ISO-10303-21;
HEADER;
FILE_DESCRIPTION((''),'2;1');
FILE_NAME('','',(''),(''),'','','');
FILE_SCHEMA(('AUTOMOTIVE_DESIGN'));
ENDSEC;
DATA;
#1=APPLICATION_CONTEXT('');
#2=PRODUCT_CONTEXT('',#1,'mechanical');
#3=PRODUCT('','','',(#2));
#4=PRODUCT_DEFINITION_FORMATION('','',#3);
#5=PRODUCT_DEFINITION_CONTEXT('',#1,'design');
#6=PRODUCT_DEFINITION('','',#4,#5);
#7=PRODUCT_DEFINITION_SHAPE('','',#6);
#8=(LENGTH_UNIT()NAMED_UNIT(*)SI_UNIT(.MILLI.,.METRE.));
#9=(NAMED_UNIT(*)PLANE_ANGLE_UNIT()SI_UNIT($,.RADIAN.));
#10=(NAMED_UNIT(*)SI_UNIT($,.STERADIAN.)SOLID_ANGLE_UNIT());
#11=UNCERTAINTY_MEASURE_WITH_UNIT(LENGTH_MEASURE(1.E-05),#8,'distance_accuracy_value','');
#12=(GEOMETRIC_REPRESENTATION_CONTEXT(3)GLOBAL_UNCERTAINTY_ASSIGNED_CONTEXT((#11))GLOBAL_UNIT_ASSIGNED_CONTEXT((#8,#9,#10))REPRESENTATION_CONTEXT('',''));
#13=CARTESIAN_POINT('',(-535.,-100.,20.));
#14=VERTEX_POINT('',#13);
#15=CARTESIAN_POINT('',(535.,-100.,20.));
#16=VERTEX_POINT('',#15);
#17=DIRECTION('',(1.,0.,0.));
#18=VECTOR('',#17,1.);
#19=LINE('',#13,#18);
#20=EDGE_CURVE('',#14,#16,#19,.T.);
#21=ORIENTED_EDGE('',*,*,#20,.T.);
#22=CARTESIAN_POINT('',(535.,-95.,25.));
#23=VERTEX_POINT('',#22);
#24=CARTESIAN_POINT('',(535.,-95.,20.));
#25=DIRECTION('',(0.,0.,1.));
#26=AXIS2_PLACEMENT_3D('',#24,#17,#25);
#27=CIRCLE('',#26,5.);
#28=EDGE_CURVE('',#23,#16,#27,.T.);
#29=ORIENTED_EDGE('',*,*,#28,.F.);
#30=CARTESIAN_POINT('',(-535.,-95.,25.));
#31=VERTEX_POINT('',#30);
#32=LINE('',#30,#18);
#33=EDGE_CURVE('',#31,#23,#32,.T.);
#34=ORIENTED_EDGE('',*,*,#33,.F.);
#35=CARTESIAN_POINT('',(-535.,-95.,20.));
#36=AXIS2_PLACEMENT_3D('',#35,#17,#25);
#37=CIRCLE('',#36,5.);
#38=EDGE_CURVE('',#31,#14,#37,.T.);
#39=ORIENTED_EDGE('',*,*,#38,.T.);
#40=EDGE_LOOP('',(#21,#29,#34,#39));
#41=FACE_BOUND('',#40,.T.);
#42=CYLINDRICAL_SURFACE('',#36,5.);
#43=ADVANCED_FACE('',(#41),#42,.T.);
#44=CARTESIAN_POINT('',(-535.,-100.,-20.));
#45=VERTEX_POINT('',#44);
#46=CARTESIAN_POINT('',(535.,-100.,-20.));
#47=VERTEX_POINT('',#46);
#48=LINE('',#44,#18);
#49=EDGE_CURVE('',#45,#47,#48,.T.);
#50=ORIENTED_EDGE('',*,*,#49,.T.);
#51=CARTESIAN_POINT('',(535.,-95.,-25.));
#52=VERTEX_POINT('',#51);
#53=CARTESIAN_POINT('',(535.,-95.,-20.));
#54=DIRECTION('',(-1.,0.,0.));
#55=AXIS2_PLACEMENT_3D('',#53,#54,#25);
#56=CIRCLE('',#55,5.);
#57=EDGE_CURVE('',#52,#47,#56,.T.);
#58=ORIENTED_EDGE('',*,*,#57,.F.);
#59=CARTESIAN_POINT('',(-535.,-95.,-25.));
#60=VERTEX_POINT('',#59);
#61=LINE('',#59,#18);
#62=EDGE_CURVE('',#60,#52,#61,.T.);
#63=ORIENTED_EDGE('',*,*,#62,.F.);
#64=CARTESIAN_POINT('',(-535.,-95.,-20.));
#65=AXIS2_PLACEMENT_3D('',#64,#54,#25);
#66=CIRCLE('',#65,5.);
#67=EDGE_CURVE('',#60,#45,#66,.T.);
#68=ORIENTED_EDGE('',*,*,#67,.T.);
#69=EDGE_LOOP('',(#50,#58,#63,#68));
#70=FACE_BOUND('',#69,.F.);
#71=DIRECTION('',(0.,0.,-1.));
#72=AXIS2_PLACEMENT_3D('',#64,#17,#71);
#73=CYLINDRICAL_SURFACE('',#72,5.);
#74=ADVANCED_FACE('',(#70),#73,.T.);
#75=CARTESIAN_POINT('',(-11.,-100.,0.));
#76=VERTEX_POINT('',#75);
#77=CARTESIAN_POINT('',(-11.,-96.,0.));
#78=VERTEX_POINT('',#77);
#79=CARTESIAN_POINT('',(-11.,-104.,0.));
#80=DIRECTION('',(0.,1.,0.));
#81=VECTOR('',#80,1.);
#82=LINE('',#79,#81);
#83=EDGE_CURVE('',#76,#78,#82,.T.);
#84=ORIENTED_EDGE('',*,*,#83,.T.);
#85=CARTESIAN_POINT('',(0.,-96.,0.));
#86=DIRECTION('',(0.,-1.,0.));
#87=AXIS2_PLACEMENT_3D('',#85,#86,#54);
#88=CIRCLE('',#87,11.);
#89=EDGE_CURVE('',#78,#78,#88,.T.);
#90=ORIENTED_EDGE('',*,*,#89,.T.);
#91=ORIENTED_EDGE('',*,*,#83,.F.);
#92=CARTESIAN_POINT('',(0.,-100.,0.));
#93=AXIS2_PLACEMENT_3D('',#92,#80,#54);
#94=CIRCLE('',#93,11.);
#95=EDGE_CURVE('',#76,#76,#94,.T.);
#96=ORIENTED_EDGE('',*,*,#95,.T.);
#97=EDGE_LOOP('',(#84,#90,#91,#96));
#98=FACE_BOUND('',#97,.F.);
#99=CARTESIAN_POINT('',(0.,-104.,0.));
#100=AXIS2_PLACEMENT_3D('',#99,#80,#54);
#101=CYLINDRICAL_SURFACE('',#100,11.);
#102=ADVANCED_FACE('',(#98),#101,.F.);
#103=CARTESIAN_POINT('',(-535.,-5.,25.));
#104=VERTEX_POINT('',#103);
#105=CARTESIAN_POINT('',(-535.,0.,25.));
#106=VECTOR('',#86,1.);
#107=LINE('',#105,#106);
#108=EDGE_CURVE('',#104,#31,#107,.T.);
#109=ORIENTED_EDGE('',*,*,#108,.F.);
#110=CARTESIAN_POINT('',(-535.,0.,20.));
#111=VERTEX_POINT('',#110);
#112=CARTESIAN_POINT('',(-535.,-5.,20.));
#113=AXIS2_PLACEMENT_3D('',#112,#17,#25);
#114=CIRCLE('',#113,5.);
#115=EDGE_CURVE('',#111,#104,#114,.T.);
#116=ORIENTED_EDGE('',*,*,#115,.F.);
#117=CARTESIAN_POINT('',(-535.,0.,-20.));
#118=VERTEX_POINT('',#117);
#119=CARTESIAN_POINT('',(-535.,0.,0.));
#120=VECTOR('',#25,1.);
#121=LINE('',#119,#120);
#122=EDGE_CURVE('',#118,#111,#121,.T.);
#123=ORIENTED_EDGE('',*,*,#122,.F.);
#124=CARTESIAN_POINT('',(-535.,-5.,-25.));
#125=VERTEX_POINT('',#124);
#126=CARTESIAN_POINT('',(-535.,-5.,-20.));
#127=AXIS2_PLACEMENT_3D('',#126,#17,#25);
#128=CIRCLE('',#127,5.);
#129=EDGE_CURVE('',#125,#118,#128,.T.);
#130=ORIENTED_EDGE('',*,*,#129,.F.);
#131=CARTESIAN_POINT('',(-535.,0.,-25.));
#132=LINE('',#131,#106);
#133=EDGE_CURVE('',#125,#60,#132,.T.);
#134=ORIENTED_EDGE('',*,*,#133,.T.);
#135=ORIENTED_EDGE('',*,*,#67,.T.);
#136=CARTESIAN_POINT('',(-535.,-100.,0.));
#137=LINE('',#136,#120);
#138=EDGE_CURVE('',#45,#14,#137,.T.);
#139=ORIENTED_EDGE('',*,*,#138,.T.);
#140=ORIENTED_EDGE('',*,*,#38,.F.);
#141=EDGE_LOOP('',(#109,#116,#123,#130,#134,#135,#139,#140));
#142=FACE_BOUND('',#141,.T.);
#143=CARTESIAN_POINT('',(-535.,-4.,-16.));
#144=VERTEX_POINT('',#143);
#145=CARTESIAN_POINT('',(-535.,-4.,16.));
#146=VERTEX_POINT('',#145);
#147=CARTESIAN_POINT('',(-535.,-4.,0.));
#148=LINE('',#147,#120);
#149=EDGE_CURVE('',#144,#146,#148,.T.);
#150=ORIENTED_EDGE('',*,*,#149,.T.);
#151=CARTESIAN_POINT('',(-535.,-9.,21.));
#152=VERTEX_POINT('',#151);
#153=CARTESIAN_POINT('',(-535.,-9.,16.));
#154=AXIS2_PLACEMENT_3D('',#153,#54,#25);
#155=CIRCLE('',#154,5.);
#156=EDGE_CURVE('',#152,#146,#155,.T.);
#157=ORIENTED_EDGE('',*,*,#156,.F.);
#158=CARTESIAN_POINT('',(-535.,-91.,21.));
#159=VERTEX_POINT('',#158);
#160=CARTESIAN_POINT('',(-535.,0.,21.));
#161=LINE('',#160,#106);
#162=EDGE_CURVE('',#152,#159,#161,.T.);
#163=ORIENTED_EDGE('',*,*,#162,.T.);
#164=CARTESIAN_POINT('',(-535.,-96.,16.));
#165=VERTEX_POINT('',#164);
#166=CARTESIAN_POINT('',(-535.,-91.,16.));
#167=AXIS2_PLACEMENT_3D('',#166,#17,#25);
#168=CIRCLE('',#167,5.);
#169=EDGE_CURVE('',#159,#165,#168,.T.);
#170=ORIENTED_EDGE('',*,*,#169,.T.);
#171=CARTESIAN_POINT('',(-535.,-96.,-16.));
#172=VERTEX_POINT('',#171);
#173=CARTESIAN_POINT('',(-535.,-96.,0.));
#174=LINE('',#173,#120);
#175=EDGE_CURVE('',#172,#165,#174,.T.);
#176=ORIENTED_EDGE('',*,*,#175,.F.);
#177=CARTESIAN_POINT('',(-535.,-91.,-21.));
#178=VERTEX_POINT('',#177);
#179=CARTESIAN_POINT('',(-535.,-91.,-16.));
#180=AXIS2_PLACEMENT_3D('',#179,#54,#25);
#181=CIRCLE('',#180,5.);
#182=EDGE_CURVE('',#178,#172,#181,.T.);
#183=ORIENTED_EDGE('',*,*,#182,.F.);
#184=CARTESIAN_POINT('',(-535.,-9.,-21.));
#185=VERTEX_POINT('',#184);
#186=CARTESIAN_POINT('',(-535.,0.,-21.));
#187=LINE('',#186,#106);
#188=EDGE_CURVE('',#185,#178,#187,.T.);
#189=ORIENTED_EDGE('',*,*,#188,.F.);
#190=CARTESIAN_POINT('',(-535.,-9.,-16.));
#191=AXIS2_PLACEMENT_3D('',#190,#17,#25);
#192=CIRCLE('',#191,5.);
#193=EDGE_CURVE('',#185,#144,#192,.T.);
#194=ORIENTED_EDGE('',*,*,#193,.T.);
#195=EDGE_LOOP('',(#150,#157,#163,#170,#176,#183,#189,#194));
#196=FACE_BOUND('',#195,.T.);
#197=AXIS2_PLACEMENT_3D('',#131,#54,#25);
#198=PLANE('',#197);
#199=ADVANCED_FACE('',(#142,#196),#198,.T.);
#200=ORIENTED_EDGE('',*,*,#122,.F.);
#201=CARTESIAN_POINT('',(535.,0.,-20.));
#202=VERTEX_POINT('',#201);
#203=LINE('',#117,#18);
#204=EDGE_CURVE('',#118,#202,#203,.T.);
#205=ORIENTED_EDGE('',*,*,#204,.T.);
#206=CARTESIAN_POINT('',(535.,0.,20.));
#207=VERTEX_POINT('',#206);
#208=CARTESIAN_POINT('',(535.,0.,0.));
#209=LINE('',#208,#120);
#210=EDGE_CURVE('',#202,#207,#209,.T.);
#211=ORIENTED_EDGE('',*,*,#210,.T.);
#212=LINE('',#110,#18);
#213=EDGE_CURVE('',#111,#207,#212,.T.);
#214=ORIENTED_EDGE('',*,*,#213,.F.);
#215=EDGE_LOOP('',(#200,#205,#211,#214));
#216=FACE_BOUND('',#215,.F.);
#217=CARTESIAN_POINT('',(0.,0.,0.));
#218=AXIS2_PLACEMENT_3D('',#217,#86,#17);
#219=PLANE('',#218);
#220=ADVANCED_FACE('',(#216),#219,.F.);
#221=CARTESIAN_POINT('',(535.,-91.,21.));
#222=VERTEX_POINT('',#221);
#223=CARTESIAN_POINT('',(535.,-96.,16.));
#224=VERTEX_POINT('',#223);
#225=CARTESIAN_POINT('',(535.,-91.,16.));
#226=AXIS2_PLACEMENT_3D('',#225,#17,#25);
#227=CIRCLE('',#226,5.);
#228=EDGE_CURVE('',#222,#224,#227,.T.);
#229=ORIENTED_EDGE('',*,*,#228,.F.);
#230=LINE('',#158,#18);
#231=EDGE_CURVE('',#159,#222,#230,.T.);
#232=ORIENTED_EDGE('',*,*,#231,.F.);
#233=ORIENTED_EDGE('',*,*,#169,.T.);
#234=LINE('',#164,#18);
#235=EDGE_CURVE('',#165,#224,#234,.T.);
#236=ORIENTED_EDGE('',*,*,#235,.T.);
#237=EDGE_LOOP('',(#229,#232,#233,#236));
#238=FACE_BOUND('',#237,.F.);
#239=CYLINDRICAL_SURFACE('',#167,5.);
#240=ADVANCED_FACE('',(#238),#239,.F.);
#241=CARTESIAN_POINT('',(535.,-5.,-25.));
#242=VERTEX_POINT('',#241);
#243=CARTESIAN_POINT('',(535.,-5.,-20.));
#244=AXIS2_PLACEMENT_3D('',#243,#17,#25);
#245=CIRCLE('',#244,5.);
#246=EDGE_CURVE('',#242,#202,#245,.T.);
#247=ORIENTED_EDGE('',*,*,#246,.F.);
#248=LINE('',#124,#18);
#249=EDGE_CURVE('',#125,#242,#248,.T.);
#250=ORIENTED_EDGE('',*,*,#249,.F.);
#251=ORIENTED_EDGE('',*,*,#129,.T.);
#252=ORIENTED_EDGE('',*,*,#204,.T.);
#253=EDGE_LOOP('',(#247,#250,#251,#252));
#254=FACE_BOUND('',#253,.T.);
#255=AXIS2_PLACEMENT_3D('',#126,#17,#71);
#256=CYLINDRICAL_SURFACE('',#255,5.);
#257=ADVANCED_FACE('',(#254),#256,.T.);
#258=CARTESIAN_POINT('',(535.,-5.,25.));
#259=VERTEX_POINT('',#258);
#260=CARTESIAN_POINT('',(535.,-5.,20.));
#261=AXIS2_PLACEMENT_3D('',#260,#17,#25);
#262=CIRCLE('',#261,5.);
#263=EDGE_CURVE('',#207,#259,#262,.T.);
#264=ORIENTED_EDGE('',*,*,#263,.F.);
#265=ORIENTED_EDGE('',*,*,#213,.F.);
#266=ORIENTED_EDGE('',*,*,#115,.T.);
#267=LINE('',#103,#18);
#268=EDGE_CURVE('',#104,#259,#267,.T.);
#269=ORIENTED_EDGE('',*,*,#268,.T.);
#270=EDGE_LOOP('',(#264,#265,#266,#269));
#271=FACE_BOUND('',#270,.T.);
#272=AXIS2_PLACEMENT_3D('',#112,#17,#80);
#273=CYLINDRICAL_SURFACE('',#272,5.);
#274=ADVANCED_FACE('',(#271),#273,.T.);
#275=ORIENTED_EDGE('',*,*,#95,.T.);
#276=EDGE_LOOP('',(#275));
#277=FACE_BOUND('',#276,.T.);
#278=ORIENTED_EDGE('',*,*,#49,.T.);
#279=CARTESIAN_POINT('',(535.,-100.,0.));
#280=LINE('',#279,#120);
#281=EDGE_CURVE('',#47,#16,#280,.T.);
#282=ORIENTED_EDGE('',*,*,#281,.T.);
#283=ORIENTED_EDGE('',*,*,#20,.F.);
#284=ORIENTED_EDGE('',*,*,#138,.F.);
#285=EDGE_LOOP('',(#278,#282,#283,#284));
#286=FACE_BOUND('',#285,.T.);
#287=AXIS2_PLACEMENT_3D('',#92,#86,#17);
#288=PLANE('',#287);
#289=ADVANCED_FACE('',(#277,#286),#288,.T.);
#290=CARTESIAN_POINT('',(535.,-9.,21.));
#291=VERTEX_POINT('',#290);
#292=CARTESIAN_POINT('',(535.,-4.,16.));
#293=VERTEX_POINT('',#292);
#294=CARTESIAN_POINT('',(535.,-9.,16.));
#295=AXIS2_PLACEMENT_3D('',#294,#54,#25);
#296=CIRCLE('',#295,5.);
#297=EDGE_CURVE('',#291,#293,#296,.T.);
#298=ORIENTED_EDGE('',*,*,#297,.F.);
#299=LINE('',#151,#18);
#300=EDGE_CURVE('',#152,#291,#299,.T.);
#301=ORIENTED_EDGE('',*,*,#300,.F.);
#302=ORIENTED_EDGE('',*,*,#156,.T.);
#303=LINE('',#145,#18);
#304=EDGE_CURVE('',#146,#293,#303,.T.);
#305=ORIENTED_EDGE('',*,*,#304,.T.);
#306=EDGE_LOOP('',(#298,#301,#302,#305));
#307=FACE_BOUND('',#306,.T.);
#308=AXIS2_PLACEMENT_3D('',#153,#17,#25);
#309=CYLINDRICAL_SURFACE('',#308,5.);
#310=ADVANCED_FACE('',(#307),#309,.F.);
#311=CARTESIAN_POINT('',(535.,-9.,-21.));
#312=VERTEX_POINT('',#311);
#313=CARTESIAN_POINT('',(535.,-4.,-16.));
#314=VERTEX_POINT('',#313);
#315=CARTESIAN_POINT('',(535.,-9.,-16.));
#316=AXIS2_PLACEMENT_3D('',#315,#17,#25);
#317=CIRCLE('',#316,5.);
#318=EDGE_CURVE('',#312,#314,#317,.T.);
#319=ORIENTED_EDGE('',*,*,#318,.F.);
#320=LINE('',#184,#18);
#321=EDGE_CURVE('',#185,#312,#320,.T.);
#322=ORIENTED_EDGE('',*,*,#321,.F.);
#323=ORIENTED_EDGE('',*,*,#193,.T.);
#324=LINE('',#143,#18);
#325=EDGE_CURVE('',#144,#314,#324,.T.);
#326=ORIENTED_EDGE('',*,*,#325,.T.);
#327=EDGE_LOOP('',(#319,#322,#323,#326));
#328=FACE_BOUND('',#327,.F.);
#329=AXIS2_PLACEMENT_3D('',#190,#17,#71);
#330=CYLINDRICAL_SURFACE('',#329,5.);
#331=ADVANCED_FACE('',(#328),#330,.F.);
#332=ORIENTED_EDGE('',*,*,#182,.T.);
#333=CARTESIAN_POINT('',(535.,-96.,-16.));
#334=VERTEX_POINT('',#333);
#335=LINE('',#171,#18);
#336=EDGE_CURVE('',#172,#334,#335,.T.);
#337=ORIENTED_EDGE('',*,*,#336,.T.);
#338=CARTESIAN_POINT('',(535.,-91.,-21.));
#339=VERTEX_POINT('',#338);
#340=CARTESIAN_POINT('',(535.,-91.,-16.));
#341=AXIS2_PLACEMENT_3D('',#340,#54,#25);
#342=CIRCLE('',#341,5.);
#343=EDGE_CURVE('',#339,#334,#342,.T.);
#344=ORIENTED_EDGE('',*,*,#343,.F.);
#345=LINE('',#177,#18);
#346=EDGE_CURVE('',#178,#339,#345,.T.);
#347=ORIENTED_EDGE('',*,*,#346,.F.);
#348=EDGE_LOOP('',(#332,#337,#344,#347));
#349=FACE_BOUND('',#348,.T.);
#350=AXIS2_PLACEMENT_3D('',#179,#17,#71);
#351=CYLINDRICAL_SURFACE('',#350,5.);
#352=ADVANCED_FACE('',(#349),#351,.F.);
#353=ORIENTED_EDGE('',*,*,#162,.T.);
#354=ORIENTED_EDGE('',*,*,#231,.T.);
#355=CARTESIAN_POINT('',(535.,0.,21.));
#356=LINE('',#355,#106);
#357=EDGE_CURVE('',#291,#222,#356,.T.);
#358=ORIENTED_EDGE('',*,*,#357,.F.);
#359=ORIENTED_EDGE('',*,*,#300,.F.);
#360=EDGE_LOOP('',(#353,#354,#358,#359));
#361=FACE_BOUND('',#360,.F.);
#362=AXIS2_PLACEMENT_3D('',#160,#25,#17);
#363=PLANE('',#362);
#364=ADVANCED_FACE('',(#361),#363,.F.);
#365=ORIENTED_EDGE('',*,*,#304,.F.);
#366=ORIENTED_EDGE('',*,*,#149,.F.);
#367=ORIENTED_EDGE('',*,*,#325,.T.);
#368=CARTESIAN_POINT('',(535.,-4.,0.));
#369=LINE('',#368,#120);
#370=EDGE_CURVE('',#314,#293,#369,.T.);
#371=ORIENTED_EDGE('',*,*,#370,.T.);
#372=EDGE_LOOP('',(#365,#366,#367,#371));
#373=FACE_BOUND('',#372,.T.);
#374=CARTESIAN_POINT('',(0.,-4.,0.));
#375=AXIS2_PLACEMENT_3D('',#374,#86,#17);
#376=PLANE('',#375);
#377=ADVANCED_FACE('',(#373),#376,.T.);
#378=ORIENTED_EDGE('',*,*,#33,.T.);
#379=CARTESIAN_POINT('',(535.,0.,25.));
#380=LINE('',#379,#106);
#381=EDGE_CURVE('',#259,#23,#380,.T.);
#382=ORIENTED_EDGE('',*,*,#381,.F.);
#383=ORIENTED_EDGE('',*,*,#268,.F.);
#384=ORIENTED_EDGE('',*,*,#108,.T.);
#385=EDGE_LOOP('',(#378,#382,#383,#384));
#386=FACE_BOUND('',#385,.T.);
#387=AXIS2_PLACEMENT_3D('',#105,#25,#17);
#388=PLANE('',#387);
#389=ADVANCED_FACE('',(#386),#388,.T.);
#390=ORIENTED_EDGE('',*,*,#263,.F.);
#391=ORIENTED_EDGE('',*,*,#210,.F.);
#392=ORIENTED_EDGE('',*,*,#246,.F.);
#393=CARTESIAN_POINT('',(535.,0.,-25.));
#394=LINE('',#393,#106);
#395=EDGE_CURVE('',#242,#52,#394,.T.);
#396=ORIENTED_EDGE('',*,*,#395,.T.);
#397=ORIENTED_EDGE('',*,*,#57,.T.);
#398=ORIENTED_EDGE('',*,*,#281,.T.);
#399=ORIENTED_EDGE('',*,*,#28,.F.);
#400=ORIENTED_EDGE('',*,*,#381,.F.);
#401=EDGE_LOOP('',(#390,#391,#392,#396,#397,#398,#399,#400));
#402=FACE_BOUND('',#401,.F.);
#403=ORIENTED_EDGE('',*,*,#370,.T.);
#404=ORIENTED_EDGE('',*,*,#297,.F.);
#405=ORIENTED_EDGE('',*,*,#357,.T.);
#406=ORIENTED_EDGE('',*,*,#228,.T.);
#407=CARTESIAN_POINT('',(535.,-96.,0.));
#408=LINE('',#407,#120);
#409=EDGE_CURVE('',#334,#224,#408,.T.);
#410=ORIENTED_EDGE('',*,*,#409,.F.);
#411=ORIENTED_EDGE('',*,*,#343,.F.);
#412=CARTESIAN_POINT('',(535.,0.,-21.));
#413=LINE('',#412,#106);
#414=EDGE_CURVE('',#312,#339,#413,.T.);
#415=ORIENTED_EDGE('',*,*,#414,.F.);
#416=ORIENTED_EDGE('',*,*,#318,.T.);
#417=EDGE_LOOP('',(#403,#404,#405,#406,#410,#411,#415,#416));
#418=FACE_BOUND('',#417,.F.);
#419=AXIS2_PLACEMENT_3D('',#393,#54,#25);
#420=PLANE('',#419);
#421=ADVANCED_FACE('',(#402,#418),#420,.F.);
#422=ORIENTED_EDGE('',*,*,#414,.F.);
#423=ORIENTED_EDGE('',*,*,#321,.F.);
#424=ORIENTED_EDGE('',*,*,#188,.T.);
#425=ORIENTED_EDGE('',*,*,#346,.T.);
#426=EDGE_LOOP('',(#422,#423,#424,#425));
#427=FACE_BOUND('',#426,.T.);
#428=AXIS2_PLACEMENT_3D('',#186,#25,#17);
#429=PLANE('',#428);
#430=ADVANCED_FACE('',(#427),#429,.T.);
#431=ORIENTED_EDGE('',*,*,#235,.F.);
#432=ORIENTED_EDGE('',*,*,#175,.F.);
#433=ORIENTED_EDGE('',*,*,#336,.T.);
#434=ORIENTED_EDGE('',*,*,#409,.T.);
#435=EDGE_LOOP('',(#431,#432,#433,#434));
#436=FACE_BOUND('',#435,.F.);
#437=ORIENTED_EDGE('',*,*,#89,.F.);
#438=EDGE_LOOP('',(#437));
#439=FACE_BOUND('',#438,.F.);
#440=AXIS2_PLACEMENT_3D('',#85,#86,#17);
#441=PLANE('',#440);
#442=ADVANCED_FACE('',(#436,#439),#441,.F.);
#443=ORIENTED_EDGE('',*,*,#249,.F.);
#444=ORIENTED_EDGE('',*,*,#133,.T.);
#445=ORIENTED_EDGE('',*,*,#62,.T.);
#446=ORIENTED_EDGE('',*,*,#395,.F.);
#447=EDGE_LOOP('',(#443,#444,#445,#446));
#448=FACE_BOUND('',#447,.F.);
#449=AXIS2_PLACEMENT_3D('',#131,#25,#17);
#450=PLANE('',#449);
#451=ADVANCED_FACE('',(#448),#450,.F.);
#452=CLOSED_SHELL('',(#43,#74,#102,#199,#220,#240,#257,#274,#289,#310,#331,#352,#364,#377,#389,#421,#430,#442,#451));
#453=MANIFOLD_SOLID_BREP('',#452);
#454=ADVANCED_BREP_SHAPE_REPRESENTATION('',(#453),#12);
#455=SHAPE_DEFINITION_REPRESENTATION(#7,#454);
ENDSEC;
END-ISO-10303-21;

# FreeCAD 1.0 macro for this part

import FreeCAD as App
import Part
import Sketcher


def edges_at(feature, points):
    """Names of the edges that pass closest to the given points."""
    edges = feature.Shape.Edges
    near = lambda p: min(range(len(edges)), key=lambda i: edges[i].distToShape(Part.Vertex(*p))[0])
    return sorted({f"Edge{near(p) + 1}" for p in points})


def faces_at(feature, points):
    """Names of the faces that lie closest to the given points."""
    faces = feature.Shape.Faces
    near = lambda p: min(range(len(faces)), key=lambda i: faces[i].distToShape(Part.Vertex(*p))[0])
    return sorted({f"Face{near(p) + 1}" for p in points})


def add_polygon(sketch, points):
    """Adds a closed chain of lines whose ends are joined by coincident constraints."""
    first, n = sketch.GeometryCount, len(points)
    for a, b in zip(points, points[1:] + points[:1]):
        sketch.addGeometry(Part.LineSegment(App.Vector(*a, 0), App.Vector(*b, 0)), False)
    for i in range(n):
        sketch.addConstraint(Sketcher.Constraint("Coincident", first + i, 2, first + (i + 1) % n, 1))

doc = App.newDocument("Part")
params = doc.addObject("Spreadsheet::Sheet", "Params")
for row, (alias, value) in enumerate([
    ("sketch1_width", "1070 mm"),
    ("sketch1_height", "50 mm"),
    ("pad1_length", "100 mm"),
    ("thickness_wall", "4 mm"),
    ("fillet_radius", "5 mm"),
    ("sketch2_diameter", "22 mm"),
    ("hole_diameter", "22 mm"),
    ("hole_depth", "4 mm"),
], start=1):
    params.set(f"A{row}", alias)
    params.set(f"B{row}", "=" + value)
    params.setAlias(f"B{row}", alias)

body = doc.addObject("PartDesign::Body", "Body")

# Sketch on XZ plane
sketch1 = doc.addObject("Sketcher::SketchObject", "Sketch")
body.addObject(sketch1)
sketch1.AttachmentSupport = (doc.XZ_Plane, [""])
sketch1.MapMode = "FlatFace"
add_polygon(sketch1, [(-535, 25), (-535, -25), (535, -25), (535, 25)])  # lines 0-3
sketch1.addConstraint([
    Sketcher.Constraint("Vertical", 0),
    Sketcher.Constraint("Horizontal", 1),
    Sketcher.Constraint("Vertical", 2),
    Sketcher.Constraint("Horizontal", 3),
    Sketcher.Constraint("Symmetric", 0, 2, 2, 2, -1, 1),
    Sketcher.Constraint("DistanceX", 1, 1, 1, 2, 1070.0),
    Sketcher.Constraint("DistanceY", 0, 2, 0, 1, 50.0),
])
sketch1.setExpression("Constraints[9]", "Params.sketch1_width")
sketch1.setExpression("Constraints[10]", "Params.sketch1_height")
pad1 = doc.addObject("PartDesign::Pad", "Pad")
body.addObject(pad1)
pad1.Profile = sketch1
pad1.setExpression("Length", "Params.pad1_length")
doc.recompute()

thickness = doc.addObject("PartDesign::Thickness", "Thickness")
body.addObject(thickness)
thickness.Base = (pad1, faces_at(pad1, [(-535, -50, 0), (535, -50, 0)]))
thickness.setExpression("Value", "Params.thickness_wall")
thickness.Reversed = True
thickness.Join = "Arc"
doc.recompute()

fillet = doc.addObject("PartDesign::Fillet", "Fillet")
body.addObject(fillet)
fillet.Base = (thickness, edges_at(thickness, [
    (0, -96, -21),
    (0, -96, 21),
    (0, -4, -21),
    (0, -4, 21),
    (0, 0, 25),
    (0, 0, -25),
    (0, -100, 25),
    (0, -100, -25),
]))
fillet.setExpression("Radius", "Params.fillet_radius")

# Sketch on XZ plane
sketch2 = doc.addObject("Sketcher::SketchObject", "Sketch001")
body.addObject(sketch2)
sketch2.AttachmentSupport = (doc.XZ_Plane, [""])
sketch2.MapMode = "FlatFace"
sketch2.AttachmentOffset = App.Placement(App.Vector(0, 0, 100), App.Rotation())
sketch2.addGeometry(Part.Circle(App.Vector(0, 0, 0), App.Vector(0, 0, 1), 11), False)
sketch2.addConstraint([
    Sketcher.Constraint("Coincident", 0, 3, -1, 1),
    Sketcher.Constraint("Diameter", 0, 22.0),
])
sketch2.setExpression("Constraints[1]", "Params.sketch2_diameter")
doc.recompute()
hole = doc.addObject("PartDesign::Hole", "Hole")
body.addObject(hole)
hole.Profile = sketch2
hole.ThreadType = "None"
hole.setExpression("Diameter", "Params.hole_diameter")
hole.DepthType = "Dimension"
hole.setExpression("Depth", "Params.hole_depth")
hole.DrillPoint = "Angled"
hole.DrillPointAngle = 118

doc.recompute()
